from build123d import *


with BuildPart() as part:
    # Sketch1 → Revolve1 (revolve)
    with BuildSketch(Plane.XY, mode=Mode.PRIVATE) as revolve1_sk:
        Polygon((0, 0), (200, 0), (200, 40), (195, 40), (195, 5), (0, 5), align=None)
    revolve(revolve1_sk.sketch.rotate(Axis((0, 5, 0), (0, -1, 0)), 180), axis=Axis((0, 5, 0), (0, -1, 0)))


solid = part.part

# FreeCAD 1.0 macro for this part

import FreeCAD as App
import Part
import Sketcher
from FreeCAD import Vector

doc = App.newDocument("Part")
body = doc.addObject("PartDesign::Body", "Body")

sketch1 = body.newObject("Sketcher::SketchObject", "Sketch")
sketch1.AttachmentSupport = (doc.getObject("XY_Plane"), [""])
sketch1.MapMode = "FlatFace"
sketch1.addGeometry(Part.LineSegment(Vector(0, 0, 0), Vector(200, 0, 0)), False)
sketch1.addGeometry(Part.LineSegment(Vector(200, 0, 0), Vector(200, 40, 0)), False)
sketch1.addGeometry(Part.LineSegment(Vector(200, 40, 0), Vector(195, 40, 0)), False)
sketch1.addGeometry(Part.LineSegment(Vector(195, 40, 0), Vector(195, 5, 0)), False)
sketch1.addGeometry(Part.LineSegment(Vector(195, 5, 0), Vector(0, 5, 0)), False)
sketch1.addGeometry(Part.LineSegment(Vector(0, 5, 0), Vector(0, 0, 0)), False)
sketch1.addConstraint(Sketcher.Constraint("Coincident", 0, 2, 1, 1))
sketch1.addConstraint(Sketcher.Constraint("Coincident", 1, 2, 2, 1))
sketch1.addConstraint(Sketcher.Constraint("Coincident", 2, 2, 3, 1))
sketch1.addConstraint(Sketcher.Constraint("Coincident", 3, 2, 4, 1))
sketch1.addConstraint(Sketcher.Constraint("Coincident", 4, 2, 5, 1))
sketch1.addConstraint(Sketcher.Constraint("Coincident", 5, 2, 0, 1))
sketch1.addConstraint(Sketcher.Constraint("Horizontal", 0))
sketch1.addConstraint(Sketcher.Constraint("Vertical", 1))
sketch1.addConstraint(Sketcher.Constraint("Horizontal", 2))
sketch1.addConstraint(Sketcher.Constraint("Vertical", 3))
sketch1.addConstraint(Sketcher.Constraint("Horizontal", 4))
sketch1.addConstraint(Sketcher.Constraint("Vertical", 5))
sketch1.addConstraint(Sketcher.Constraint("Coincident", 5, 2, -1, 1))
sketch1.addConstraint(Sketcher.Constraint("Equal", 2, 5))
sketch1.addConstraint(Sketcher.Constraint("DistanceX", 0, 1, 0, 2, 200.0))
sketch1.addConstraint(Sketcher.Constraint("DistanceX", 2, 2, 2, 1, 5.0))
sketch1.addConstraint(Sketcher.Constraint("DistanceY", 1, 1, 1, 2, 40.0))
revolution = body.newObject("PartDesign::Revolution", "Revolution")
revolution.Profile = sketch1
revolution.ReferenceAxis = (sketch1, ["V_Axis"])
revolution.Angle = 360

doc.recompute()
